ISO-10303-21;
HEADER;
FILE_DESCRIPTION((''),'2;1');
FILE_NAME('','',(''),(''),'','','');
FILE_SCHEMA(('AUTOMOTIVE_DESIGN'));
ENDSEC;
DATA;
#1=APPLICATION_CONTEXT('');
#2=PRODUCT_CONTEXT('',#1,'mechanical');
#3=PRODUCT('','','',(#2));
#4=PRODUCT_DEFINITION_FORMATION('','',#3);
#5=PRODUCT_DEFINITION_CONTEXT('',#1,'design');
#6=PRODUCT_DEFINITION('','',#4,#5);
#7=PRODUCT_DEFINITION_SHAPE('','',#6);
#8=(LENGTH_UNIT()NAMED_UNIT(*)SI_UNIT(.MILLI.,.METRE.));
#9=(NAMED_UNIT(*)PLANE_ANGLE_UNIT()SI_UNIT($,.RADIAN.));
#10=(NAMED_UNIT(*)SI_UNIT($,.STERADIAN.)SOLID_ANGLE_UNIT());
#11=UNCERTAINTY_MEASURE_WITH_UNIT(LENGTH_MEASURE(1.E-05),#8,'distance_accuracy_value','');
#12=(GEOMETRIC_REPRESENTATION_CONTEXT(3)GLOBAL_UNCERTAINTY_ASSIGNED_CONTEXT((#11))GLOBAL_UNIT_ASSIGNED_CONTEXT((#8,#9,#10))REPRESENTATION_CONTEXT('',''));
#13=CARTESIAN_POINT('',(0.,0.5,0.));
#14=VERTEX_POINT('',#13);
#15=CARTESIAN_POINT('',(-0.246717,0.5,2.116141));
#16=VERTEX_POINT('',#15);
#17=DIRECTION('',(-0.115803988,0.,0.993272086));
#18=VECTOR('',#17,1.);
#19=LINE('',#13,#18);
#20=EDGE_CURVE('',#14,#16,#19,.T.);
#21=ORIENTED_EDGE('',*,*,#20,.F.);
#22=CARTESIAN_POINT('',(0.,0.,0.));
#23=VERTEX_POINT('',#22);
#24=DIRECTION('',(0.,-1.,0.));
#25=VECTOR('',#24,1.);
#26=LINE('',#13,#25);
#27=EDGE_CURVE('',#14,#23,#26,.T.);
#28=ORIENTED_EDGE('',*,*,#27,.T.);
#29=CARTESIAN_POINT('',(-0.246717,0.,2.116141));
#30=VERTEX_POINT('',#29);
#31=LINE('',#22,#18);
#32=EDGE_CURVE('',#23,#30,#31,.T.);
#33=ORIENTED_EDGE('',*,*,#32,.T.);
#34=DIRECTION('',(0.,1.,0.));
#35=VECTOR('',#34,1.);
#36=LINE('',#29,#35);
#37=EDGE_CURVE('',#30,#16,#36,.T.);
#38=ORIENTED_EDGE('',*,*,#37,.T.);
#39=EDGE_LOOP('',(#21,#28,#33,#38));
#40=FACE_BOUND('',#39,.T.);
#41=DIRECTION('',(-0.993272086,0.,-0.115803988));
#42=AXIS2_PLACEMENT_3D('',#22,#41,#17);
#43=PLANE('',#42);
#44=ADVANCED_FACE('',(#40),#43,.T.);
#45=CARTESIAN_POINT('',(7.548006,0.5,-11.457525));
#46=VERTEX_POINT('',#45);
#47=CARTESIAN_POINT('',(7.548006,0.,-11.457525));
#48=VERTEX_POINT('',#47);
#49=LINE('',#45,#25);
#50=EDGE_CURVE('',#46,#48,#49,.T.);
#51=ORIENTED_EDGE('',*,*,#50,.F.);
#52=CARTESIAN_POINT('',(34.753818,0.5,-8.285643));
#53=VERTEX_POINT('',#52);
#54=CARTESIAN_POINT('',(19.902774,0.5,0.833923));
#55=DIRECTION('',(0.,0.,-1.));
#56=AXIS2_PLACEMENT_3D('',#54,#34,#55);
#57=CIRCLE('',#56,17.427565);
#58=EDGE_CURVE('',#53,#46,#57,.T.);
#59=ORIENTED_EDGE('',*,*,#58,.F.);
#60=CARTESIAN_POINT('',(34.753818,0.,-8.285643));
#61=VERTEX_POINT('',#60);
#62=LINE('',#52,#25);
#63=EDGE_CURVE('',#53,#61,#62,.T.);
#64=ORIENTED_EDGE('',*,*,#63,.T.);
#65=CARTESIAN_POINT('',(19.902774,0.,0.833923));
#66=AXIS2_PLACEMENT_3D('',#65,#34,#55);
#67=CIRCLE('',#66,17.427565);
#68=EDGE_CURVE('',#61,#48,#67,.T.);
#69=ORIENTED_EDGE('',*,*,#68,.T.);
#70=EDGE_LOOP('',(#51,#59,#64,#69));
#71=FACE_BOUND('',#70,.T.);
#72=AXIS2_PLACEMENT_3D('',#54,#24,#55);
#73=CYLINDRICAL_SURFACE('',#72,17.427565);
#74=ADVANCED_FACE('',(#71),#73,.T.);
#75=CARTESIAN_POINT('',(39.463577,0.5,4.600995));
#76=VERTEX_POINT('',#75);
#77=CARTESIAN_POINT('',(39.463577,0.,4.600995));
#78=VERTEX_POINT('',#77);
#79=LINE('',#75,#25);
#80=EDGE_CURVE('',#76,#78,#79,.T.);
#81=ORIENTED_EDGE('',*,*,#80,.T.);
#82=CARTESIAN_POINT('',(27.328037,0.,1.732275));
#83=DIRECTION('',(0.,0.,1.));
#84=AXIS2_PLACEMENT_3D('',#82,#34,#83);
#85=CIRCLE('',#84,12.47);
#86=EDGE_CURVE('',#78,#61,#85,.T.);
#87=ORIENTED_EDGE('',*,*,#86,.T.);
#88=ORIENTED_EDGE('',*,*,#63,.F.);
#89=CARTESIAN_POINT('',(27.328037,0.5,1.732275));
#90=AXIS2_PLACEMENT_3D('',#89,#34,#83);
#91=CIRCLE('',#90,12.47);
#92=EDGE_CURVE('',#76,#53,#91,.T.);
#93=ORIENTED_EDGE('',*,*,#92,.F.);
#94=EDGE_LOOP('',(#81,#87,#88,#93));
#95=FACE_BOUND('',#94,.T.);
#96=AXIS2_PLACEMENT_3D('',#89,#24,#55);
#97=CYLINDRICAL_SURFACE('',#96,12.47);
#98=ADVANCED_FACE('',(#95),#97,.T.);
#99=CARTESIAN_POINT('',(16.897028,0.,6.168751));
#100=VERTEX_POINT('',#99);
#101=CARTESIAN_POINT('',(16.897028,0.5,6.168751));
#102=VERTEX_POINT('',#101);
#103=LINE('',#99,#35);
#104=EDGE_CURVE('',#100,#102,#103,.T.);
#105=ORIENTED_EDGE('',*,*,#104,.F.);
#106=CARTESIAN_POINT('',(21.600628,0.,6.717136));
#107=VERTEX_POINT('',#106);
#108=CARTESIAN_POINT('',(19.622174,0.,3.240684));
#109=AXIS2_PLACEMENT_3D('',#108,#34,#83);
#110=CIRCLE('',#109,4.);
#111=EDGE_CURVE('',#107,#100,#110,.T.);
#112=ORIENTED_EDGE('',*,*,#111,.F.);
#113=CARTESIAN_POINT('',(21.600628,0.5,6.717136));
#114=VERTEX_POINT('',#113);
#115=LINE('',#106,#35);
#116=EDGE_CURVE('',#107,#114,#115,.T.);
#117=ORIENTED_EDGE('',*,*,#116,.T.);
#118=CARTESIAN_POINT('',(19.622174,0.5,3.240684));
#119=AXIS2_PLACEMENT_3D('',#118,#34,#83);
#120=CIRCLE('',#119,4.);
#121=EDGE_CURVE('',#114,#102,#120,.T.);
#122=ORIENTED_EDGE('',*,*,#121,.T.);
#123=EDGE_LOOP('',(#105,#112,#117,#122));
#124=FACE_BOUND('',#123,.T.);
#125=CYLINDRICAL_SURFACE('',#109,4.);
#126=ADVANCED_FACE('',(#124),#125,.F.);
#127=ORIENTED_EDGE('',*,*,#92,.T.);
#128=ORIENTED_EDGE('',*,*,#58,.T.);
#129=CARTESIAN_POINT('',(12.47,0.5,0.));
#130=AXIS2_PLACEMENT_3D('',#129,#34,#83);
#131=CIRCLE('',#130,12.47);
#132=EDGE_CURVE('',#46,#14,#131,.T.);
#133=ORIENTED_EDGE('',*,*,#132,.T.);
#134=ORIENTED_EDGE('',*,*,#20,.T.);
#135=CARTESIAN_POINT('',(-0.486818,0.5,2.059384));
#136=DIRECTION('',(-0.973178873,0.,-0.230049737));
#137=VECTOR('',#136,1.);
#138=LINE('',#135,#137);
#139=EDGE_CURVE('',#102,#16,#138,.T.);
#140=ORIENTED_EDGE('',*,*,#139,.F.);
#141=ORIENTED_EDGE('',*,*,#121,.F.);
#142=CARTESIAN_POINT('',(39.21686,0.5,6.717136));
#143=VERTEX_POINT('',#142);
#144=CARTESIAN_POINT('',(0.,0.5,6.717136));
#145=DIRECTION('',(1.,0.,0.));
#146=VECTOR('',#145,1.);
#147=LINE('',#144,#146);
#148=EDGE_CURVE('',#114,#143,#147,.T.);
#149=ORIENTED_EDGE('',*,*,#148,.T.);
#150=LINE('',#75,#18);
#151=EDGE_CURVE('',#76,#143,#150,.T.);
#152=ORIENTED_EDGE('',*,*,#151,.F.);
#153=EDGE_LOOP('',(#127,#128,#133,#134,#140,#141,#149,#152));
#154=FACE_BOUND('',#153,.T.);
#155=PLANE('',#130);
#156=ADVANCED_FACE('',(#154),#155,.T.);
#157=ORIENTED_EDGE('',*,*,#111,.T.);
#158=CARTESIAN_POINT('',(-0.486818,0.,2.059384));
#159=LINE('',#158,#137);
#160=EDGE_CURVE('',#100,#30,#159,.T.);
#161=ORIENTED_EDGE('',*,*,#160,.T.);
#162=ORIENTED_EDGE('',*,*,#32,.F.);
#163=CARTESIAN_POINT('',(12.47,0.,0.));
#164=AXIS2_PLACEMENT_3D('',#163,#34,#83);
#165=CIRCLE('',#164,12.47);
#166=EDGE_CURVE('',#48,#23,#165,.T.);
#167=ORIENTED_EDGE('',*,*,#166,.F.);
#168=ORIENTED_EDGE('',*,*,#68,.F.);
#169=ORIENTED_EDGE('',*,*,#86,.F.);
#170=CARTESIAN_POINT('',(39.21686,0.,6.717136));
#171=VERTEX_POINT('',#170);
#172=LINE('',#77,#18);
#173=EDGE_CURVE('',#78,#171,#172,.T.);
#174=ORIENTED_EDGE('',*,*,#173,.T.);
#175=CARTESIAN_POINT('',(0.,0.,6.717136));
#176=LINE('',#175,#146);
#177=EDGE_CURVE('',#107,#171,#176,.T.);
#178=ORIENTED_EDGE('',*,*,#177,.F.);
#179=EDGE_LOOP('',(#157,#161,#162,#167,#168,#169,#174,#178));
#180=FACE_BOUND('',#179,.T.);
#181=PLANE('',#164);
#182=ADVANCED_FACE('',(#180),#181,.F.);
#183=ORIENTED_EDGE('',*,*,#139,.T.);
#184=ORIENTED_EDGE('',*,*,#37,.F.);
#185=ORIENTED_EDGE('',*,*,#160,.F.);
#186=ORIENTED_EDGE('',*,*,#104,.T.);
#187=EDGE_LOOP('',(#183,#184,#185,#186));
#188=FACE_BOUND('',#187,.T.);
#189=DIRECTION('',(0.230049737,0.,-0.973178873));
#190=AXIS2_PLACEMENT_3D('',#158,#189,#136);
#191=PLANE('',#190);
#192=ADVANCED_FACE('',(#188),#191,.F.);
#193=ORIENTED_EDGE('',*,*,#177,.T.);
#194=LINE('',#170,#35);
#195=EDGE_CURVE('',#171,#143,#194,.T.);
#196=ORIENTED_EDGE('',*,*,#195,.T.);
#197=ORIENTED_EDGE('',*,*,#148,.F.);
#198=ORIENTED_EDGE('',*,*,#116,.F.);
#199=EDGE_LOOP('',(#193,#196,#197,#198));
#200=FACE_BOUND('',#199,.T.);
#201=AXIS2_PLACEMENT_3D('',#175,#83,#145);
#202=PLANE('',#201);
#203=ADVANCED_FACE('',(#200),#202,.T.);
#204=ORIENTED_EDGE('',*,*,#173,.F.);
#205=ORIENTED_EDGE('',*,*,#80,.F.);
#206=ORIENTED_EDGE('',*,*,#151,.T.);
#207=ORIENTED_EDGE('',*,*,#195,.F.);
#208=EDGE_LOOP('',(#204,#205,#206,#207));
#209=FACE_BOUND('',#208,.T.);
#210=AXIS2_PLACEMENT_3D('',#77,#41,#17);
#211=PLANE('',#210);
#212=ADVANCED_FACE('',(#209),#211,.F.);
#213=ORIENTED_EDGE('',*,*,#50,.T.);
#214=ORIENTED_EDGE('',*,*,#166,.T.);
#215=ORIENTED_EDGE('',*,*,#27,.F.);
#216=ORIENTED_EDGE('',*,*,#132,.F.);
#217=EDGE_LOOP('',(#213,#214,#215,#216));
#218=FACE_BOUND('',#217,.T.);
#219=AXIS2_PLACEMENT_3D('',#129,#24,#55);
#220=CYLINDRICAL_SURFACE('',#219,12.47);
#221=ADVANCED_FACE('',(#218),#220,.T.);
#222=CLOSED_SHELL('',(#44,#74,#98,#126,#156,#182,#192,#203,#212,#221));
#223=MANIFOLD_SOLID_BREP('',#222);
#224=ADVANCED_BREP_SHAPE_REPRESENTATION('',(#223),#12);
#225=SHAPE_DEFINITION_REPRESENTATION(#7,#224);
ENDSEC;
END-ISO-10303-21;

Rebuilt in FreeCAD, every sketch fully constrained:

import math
import FreeCAD as App
import Part
import Sketcher
Q = App.Units.Quantity

doc = App.newDocument("Part")
body = doc.addObject("PartDesign::Body", "Body")

sketch1 = body.newObject("Sketcher::SketchObject", "Sketch")
sketch1.AttachmentSupport = (doc.getObject("XZ_Plane"), [""])
sketch1.MapMode = "FlatFace"
sketch1.addGeometry(Part.LineSegment(App.Vector(0, 0, 0), App.Vector(20, 0, 0)), False)
sketch1.addGeometry(Part.LineSegment(App.Vector(20, 0, 0), App.Vector(39, 5, 0)), False)
sketch1.addGeometry(Part.ArcOfCircle(Part.Circle(App.Vector(27, 2, 0), App.Vector(0, 0, 1), 12), math.radians(-53), math.radians(13)), False)
sketch1.addGeometry(Part.ArcOfCircle(Part.Circle(App.Vector(20, 1, 0), App.Vector(0, 0, 1), 17), math.radians(-135), math.radians(-32)), False)
sketch1.addGeometry(Part.ArcOfCircle(Part.Circle(App.Vector(12, 0, 0), App.Vector(0, 0, 1), 12), math.radians(-180), math.radians(-113)), False)
sketch1.addConstraint(Sketcher.Constraint("Coincident", 0, 2, 1, 1))
sketch1.addConstraint(Sketcher.Constraint("Coincident", 1, 2, 2, 2))
sketch1.addConstraint(Sketcher.Constraint("Coincident", 2, 1, 3, 2))
sketch1.addConstraint(Sketcher.Constraint("Coincident", 3, 1, 4, 2))
sketch1.addConstraint(Sketcher.Constraint("Coincident", 4, 1, 0, 1))
sketch1.addConstraint(Sketcher.Constraint("Horizontal", 0))
sketch1.addConstraint(Sketcher.Constraint("Coincident", 4, 1, -1, 1))
sketch1.addConstraint(Sketcher.Constraint("Equal", 2, 4))
sketch1.addConstraint(Sketcher.Constraint("PointOnObject", 4, 3, -1))
sketch1.addConstraint(Sketcher.Constraint("DistanceX", 0, 1, 0, 2, 20.0))
sketch1.addConstraint(Sketcher.Constraint("Radius", 2, 12.47))
sketch1.addConstraint(Sketcher.Constraint("Distance", 1, 20.0))
sketch1.addConstraint(Sketcher.Constraint("Angle", 1, Q("13.3 deg")))
sketch1.addConstraint(Sketcher.Constraint("Radius", 3, 17.427565))
sketch1.addConstraint(Sketcher.Constraint("DistanceY", 3, 1, 2, 3, 13.189799))
sketch1.addConstraint(Sketcher.Constraint("DistanceX", -1, 1, 2, 1, 34.753818))
sketch1.addConstraint(Sketcher.Constraint("DistanceY", 3, 3, 2, 3, 0.898351))
pad1 = body.newObject("PartDesign::Pad", "Pad")
pad1.Profile = sketch1
pad1.Length = 0.5
pad1.Reversed = True

sketch2 = body.newObject("Sketcher::SketchObject", "Sketch001")
sketch2.AttachmentSupport = (doc.getObject("XZ_Plane"), [""])
sketch2.MapMode = "FlatFace"
sketch2.AttachmentOffset = App.Placement(App.Vector(0, 0, -0.5), App.Rotation())
sketch2.addGeometry(Part.LineSegment(App.Vector(16.5, 0, 0), App.Vector(20, 0, 0)), False)
sketch2.addGeometry(Part.LineSegment(App.Vector(20, 0, 0), App.Vector(23.4, 0.8, 0)), False)
sketch2.addGeometry(Part.ArcOfCircle(Part.Circle(App.Vector(19.6, 3.2, 0), App.Vector(0, 0, 1), 4.5), math.radians(-134), math.radians(-33)), False)
sketch2.addConstraint(Sketcher.Constraint("Coincident", 0, 2, 1, 1))
sketch2.addConstraint(Sketcher.Constraint("Coincident", 1, 2, 2, 2))
sketch2.addConstraint(Sketcher.Constraint("Coincident", 2, 1, 0, 1))
sketch2.addConstraint(Sketcher.Constraint("Horizontal", 0))
sketch2.addConstraint(Sketcher.Constraint("PointOnObject", 0, 2, -1))
sketch2.addConstraint(Sketcher.Constraint("Radius", 2, 4.5))
sketch2.addConstraint(Sketcher.Constraint("DistanceX", 0, 1, 0, 2, 3.5))
sketch2.addConstraint(Sketcher.Constraint("DistanceX", -1, 1, 0, 2, 20.0))
sketch2.addConstraint(Sketcher.Constraint("Angle", 1, Q("13.3 deg")))
sketch2.addConstraint(Sketcher.Constraint("Distance", 1, 3.5))
pocket1 = body.newObject("PartDesign::Pocket", "Pocket")
pocket1.Profile = sketch2
pocket1.Length = 0.5
pocket1.Reversed = True

sketch3 = body.newObject("Sketcher::SketchObject", "Sketch002")
sketch3.AttachmentSupport = (doc.getObject("XZ_Plane"), [""])
sketch3.MapMode = "FlatFace"
sketch3.AttachmentOffset = App.Placement(App.Vector(0, 0, -0.5), App.Rotation())
sketch3.addGeometry(Part.LineSegment(App.Vector(-0.2, 2.1, 0), App.Vector(16.9, 6.2, 0)), False)
sketch3.addGeometry(Part.ArcOfCircle(Part.Circle(App.Vector(19.6, 3.2, 0), App.Vector(0, 0, 1), 4), math.radians(133), math.radians(360)), False)
sketch3.addGeometry(Part.ArcOfCircle(Part.Circle(App.Vector(19.6, 3.2, 0), App.Vector(0, 0, 1), 4), math.radians(0), math.radians(60)), False)
sketch3.addGeometry(Part.LineSegment(App.Vector(21.6, 6.7, 0), App.Vector(39.2, 6.7, 0)), False)
sketch3.addGeometry(Part.LineSegment(App.Vector(39.2, 6.7, 0), App.Vector(39.5, 4.6, 0)), False)
sketch3.addGeometry(Part.LineSegment(App.Vector(39.5, 4.6, 0), App.Vector(20.7, -2.9, 0)), False)
sketch3.addGeometry(Part.LineSegment(App.Vector(20.7, -2.9, 0), App.Vector(0, 0, 0)), False)
sketch3.addGeometry(Part.LineSegment(App.Vector(0, 0, 0), App.Vector(-0.2, 2.1, 0)), False)
sketch3.addConstraint(Sketcher.Constraint("Coincident", 0, 2, 1, 1))
sketch3.addConstraint(Sketcher.Constraint("Tangent", 1, 2, 2, 1))
sketch3.addConstraint(Sketcher.Constraint("Coincident", 2, 2, 3, 1))
sketch3.addConstraint(Sketcher.Constraint("Coincident", 3, 2, 4, 1))
sketch3.addConstraint(Sketcher.Constraint("Coincident", 4, 2, 5, 1))
sketch3.addConstraint(Sketcher.Constraint("Coincident", 5, 2, 6, 1))
sketch3.addConstraint(Sketcher.Constraint("Coincident", 6, 2, 7, 1))
sketch3.addConstraint(Sketcher.Constraint("Coincident", 7, 2, 0, 1))
sketch3.addConstraint(Sketcher.Constraint("Horizontal", 3))
sketch3.addConstraint(Sketcher.Constraint("Coincident", 6, 2, -1, 1))
sketch3.addConstraint(Sketcher.Constraint("Equal", 1, 2))
sketch3.addConstraint(Sketcher.Constraint("Parallel", 4, 7))
sketch3.addConstraint(Sketcher.Constraint("Horizontal", 2, 3, 1, 2))
sketch3.addConstraint(Sketcher.Constraint("Equal", 4, 7))
sketch3.addConstraint(Sketcher.Constraint("Radius", 1, 4.0))
sketch3.addConstraint(Sketcher.Constraint("Angle", 0, Q("13.3 deg")))
sketch3.addConstraint(Sketcher.Constraint("Angle", 4, Q("-83.35 deg")))
sketch3.addConstraint(Sketcher.Constraint("DistanceX", 0, 2, 2, 2, 4.7036))
sketch3.addConstraint(Sketcher.Constraint("Distance", 5, 20.21763))
sketch3.addConstraint(Sketcher.Constraint("Distance", 6, 20.893448))
sketch3.addConstraint(Sketcher.Constraint("DistanceX", 3, 1, 3, 2, 17.616232))
sketch3.addConstraint(Sketcher.Constraint("DistanceY", -1, 1, 0, 2, 6.168751))
sketch3.addConstraint(Sketcher.Constraint("DistanceX", -1, 1, 3, 2, 39.21686))
sketch3.addConstraint(Sketcher.Constraint("DistanceY", 1, 2, 4, 2, 1.360311))
pad2 = body.newObject("PartDesign::Pad", "Pad001")
pad2.Profile = sketch3
pad2.Length = 0.5

doc.recompute()
